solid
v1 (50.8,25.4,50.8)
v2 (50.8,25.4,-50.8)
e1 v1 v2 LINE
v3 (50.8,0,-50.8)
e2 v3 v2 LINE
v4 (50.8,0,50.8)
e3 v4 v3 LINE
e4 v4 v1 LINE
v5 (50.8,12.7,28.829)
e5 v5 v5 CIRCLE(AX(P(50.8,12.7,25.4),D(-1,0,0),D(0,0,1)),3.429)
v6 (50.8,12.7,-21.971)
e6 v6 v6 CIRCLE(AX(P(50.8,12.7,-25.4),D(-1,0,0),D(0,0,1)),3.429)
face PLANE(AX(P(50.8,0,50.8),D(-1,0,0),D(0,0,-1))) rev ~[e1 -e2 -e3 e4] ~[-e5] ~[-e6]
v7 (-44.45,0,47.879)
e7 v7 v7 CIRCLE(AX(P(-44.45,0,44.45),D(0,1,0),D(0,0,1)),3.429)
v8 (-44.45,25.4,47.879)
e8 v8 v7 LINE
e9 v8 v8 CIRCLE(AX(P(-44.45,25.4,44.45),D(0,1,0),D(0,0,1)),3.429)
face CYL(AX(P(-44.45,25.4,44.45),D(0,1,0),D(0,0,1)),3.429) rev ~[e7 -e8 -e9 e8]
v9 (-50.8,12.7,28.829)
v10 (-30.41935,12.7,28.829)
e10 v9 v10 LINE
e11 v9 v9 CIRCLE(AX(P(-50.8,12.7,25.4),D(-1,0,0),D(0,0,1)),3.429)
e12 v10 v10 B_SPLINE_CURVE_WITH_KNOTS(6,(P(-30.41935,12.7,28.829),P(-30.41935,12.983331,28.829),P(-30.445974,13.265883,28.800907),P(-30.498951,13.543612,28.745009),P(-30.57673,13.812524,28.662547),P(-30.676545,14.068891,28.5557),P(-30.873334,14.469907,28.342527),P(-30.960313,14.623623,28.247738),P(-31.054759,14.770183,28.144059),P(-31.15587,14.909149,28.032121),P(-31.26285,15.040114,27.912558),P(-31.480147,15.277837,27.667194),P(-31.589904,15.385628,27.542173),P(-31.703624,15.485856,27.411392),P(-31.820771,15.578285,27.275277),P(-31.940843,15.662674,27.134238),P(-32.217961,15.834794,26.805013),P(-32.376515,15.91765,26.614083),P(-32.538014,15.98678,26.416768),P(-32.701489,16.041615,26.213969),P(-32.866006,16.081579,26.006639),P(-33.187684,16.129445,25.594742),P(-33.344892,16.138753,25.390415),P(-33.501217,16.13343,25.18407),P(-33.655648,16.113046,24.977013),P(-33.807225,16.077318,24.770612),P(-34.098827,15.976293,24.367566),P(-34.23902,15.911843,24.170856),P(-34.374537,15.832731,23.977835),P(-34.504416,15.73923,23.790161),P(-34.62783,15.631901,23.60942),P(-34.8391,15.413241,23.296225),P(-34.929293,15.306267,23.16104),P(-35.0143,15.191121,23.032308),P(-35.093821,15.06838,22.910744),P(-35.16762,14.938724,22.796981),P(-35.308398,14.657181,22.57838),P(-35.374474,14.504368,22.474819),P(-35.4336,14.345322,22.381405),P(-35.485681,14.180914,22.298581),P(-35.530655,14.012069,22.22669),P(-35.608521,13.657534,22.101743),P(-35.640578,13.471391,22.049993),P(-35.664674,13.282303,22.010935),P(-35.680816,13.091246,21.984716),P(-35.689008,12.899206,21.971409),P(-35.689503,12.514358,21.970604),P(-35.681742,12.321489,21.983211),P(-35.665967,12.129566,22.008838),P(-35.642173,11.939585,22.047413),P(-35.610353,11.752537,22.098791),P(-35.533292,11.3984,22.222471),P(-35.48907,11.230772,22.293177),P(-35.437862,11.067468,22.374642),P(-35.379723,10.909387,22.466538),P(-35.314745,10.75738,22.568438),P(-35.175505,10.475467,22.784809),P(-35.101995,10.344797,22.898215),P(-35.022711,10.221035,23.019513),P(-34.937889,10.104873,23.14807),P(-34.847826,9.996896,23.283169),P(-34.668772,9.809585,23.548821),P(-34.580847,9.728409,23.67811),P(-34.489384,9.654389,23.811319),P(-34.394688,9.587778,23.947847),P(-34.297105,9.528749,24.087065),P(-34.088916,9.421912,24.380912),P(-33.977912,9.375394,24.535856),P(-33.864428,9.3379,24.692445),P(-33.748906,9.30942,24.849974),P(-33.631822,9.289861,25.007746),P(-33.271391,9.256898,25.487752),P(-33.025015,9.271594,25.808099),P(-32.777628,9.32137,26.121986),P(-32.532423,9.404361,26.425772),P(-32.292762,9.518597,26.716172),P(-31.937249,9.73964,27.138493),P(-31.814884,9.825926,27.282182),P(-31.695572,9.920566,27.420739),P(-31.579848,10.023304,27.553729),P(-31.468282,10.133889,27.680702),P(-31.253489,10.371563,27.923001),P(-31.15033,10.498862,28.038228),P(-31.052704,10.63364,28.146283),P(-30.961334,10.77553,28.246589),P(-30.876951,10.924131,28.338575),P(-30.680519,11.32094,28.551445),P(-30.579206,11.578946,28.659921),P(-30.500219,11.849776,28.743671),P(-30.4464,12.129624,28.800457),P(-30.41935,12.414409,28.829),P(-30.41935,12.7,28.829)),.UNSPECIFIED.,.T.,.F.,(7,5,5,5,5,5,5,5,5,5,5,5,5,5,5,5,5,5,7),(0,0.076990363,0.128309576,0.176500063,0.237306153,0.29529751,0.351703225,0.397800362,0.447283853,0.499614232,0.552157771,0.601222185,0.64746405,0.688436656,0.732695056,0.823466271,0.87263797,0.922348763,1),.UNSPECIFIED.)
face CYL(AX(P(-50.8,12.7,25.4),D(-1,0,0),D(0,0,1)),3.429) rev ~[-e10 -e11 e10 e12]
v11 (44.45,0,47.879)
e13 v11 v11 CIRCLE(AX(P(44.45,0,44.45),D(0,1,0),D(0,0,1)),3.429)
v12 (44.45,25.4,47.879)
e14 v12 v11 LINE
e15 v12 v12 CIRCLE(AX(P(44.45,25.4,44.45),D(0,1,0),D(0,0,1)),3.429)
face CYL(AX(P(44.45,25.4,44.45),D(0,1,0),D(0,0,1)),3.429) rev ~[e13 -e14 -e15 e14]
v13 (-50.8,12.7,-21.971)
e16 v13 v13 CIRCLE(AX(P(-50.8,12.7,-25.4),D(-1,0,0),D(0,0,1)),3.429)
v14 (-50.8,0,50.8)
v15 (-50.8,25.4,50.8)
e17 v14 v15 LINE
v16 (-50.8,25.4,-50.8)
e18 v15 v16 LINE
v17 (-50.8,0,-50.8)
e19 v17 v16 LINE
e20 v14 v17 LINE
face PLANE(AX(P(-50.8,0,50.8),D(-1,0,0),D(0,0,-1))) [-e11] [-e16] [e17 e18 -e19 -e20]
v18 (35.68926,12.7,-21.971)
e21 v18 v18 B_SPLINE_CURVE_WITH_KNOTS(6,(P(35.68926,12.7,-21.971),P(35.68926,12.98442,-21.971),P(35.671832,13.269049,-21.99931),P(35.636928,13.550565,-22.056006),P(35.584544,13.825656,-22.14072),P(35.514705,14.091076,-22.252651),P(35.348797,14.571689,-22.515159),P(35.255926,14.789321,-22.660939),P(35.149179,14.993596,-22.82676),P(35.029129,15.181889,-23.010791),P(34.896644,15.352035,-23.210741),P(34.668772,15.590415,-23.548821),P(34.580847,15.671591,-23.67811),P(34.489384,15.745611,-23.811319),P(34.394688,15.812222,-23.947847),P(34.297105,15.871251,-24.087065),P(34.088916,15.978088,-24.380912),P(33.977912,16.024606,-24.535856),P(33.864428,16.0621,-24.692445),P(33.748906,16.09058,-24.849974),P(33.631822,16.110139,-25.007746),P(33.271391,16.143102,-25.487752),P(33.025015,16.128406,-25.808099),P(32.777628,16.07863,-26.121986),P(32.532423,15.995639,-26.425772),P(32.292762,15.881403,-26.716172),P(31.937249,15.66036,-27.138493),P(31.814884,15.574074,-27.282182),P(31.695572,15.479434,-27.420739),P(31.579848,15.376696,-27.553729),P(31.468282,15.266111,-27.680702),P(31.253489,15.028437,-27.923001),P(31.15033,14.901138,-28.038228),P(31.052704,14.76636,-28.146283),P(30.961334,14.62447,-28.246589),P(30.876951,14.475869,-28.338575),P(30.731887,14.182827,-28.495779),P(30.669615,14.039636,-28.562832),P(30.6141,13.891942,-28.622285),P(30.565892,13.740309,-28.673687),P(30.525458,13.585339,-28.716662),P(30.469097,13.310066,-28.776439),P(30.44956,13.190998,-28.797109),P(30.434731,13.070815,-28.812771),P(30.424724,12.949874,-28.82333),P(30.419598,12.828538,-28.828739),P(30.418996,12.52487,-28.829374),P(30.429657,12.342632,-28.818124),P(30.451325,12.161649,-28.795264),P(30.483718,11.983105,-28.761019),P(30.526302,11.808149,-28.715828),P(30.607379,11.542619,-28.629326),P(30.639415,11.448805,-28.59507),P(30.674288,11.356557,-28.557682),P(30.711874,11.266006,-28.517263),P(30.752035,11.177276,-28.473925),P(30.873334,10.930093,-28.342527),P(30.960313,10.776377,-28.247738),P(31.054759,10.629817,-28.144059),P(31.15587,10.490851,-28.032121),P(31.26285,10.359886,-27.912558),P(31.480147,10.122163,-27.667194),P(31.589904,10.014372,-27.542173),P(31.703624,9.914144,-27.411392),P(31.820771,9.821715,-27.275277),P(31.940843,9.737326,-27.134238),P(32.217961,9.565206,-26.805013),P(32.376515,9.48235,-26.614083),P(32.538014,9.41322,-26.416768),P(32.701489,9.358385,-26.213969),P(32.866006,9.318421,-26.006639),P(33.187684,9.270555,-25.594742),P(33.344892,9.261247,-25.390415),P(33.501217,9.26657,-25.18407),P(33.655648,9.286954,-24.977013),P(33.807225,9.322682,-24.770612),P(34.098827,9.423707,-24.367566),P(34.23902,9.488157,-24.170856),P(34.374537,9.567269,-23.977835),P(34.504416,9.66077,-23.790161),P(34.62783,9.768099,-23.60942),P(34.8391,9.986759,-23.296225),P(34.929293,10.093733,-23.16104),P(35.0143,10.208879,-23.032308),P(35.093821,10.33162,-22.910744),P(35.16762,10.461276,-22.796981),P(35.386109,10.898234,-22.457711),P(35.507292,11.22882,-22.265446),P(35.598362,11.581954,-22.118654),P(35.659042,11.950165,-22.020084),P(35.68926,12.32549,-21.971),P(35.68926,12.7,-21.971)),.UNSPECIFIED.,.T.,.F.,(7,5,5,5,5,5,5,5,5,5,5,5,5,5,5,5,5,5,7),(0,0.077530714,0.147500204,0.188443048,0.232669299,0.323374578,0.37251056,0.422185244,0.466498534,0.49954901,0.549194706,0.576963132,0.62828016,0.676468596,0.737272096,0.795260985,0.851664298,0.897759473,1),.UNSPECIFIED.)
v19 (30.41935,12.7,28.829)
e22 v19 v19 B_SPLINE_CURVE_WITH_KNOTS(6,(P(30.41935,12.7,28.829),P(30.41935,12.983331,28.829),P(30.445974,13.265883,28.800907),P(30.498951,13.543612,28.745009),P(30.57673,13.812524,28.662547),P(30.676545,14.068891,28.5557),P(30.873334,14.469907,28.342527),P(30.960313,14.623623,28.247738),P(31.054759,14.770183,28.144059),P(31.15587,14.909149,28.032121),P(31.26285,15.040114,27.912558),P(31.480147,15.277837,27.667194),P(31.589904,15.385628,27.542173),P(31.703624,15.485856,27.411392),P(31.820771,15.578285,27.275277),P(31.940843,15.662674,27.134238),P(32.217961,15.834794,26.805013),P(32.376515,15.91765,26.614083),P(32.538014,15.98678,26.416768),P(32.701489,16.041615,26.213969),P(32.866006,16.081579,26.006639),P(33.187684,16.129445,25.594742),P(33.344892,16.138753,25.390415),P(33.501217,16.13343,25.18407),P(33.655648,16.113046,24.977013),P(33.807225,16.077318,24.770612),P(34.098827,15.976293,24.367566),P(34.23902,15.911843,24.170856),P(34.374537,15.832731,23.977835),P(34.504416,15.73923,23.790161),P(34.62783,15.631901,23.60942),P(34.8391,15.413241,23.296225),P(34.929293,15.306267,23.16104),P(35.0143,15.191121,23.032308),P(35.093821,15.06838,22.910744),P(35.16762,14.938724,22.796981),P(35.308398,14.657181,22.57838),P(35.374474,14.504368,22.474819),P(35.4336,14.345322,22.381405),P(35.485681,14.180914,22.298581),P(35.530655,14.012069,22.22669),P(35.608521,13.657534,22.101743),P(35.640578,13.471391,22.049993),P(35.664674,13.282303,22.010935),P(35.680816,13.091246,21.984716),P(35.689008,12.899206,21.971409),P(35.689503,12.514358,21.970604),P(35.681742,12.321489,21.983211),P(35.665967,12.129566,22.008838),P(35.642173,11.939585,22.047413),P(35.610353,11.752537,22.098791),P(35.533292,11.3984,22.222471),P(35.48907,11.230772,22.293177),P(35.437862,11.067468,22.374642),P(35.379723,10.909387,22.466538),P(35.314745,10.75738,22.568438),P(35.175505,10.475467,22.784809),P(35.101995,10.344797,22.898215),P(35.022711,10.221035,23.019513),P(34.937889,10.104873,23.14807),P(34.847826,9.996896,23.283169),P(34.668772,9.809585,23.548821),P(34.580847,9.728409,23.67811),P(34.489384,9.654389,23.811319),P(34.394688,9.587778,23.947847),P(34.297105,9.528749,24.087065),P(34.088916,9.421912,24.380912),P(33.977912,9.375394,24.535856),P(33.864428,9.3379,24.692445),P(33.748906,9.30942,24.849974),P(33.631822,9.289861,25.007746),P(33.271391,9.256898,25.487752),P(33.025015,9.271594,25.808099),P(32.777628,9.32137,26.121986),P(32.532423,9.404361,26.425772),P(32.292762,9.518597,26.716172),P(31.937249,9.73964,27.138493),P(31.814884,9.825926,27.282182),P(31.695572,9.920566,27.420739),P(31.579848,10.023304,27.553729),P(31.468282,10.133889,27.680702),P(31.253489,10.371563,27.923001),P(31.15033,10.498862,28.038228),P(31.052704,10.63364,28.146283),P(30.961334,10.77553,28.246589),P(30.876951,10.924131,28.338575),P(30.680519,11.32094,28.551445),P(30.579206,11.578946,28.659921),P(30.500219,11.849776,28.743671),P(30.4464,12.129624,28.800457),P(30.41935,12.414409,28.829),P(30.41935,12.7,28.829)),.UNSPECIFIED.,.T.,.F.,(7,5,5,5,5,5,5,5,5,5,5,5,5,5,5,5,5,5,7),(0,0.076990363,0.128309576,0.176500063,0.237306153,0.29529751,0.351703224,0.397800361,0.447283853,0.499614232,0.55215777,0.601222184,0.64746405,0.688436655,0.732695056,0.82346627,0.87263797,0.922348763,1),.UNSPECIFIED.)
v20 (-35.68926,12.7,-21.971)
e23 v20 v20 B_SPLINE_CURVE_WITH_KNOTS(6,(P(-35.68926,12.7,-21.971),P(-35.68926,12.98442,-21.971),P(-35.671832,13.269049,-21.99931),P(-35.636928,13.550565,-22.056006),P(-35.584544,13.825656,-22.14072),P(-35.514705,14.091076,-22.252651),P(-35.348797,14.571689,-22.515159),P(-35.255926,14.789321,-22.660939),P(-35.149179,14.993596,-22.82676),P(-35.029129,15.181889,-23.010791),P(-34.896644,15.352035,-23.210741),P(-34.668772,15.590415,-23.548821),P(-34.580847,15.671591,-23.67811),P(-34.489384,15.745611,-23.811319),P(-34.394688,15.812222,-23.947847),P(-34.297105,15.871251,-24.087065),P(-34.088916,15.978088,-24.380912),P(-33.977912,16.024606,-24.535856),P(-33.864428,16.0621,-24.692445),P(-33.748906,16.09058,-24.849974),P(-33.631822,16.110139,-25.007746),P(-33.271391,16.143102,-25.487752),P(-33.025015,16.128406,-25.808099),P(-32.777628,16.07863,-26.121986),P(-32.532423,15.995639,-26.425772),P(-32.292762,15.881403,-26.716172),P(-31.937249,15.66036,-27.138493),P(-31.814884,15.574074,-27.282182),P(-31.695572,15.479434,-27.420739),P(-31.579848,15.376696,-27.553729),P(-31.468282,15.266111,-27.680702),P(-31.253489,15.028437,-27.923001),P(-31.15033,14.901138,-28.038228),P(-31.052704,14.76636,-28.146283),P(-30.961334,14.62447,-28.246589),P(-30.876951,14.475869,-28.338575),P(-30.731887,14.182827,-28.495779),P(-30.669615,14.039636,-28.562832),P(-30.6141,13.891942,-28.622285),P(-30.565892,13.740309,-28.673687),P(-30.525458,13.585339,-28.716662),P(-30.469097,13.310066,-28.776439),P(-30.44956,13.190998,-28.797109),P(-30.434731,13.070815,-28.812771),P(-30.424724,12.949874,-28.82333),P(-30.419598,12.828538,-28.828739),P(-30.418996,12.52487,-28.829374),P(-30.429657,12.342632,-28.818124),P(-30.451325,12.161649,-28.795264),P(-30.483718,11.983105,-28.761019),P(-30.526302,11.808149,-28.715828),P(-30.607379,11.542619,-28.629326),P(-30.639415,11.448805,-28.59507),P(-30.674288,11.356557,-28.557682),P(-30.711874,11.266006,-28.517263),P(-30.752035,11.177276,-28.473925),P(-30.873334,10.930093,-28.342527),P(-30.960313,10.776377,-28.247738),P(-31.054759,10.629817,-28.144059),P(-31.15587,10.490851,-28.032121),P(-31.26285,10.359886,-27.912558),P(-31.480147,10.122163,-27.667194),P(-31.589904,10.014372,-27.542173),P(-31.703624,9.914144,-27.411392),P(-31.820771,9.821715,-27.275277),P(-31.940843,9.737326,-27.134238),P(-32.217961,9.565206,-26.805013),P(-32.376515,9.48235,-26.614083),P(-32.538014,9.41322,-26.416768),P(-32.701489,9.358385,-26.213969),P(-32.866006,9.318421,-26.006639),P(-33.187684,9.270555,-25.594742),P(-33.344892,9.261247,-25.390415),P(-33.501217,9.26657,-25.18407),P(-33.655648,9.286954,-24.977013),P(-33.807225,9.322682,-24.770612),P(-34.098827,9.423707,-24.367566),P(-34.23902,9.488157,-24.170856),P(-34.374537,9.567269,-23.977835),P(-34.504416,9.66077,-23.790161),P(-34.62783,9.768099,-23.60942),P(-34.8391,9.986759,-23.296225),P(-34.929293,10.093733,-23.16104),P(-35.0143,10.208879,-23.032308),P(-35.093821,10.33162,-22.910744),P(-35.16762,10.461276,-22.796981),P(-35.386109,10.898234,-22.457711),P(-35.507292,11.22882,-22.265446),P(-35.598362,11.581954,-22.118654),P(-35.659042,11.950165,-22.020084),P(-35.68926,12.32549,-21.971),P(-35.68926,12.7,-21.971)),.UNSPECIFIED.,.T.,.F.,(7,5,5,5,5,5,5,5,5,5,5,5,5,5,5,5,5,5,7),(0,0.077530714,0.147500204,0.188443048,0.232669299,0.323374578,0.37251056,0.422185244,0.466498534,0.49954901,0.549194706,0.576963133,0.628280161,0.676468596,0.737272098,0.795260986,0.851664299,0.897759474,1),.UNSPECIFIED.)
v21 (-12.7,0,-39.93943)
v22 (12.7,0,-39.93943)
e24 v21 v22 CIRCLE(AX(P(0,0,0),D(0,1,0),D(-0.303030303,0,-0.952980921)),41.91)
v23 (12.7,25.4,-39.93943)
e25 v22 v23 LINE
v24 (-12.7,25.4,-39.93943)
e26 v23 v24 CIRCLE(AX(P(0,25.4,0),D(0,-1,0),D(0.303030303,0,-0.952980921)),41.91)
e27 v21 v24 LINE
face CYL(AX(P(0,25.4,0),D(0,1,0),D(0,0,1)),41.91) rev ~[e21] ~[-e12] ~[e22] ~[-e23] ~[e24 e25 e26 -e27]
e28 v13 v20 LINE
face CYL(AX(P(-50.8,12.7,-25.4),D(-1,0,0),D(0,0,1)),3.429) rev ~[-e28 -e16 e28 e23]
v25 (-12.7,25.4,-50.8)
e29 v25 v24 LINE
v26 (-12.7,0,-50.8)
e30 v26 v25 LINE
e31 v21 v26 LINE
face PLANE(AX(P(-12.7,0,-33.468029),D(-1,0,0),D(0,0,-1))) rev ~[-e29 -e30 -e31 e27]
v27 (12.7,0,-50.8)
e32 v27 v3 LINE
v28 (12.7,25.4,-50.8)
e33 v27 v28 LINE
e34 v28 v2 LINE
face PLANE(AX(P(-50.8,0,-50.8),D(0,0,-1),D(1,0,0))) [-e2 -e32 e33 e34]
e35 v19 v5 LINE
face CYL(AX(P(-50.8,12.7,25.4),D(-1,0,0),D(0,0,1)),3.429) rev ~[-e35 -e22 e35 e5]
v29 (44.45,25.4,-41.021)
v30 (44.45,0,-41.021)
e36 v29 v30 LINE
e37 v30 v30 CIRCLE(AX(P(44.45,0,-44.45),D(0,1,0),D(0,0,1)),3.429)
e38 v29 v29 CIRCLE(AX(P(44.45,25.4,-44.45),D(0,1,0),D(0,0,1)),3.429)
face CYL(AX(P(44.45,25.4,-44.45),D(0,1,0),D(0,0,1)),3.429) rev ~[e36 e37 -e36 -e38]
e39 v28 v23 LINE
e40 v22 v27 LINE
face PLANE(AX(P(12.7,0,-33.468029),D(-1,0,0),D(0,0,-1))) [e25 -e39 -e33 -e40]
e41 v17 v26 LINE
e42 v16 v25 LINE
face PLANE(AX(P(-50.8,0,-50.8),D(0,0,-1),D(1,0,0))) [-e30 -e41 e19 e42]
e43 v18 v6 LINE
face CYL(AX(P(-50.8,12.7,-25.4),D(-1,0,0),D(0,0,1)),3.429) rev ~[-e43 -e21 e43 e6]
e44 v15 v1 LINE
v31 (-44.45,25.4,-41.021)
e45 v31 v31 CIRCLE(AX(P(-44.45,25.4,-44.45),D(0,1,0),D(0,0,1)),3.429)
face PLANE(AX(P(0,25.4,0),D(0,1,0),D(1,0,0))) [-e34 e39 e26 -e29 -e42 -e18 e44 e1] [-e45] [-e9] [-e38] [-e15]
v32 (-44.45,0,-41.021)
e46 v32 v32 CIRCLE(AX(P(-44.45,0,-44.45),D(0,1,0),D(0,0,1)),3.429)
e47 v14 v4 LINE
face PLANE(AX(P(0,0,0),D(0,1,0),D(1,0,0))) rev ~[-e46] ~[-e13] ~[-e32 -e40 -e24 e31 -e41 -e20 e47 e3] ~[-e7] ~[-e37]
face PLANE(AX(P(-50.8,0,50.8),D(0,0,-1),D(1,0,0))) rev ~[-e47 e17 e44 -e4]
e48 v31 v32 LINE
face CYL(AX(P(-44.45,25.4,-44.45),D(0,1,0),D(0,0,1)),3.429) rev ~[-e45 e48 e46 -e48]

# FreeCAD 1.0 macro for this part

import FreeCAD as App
import Part
import Sketcher
from FreeCAD import Vector
Q = App.Units.Quantity

doc = App.newDocument("Part")
params = doc.addObject("Spreadsheet::Sheet", "Params")
for row, (alias, value) in enumerate([
    ("sketch1_width", "4 in"),
    ("pad1_length", "1 in"),
    ("sketch2_diameter", "3.3 in"),
    ("sketch3_width", "1 in"),
    ("sketch4_diameter", "0.27 in"),
    ("sketch5_diameter", "0.27 in"),
], start=1):
    params.set(f"A{row}", alias)
    params.set(f"B{row}", "=" + value)
    params.setAlias(f"B{row}", alias)

body = doc.addObject("PartDesign::Body", "Body")

# Sketch on XZ plane
sketch1 = body.newObject("Sketcher::SketchObject", "Sketch")
sketch1.AttachmentSupport = (doc.getObject("XZ_Plane"), [""])
sketch1.MapMode = "FlatFace"
sketch1.addGeometry([
    Part.LineSegment(Vector(-51, -51, 0), Vector(-51, 51, 0)),
    Part.LineSegment(Vector(-51, 51, 0), Vector(51, 51, 0)),
    Part.LineSegment(Vector(51, 51, 0), Vector(51, -51, 0)),
    Part.LineSegment(Vector(51, -51, 0), Vector(-51, -51, 0)),
], False)
sketch1.addConstraint([
    Sketcher.Constraint("Coincident", 0, 2, 1, 1),
    Sketcher.Constraint("Coincident", 1, 2, 2, 1),
    Sketcher.Constraint("Coincident", 2, 2, 3, 1),
    Sketcher.Constraint("Coincident", 3, 2, 0, 1),
    Sketcher.Constraint("Vertical", 0),
    Sketcher.Constraint("Horizontal", 1),
    Sketcher.Constraint("Vertical", 2),
    Sketcher.Constraint("Horizontal", 3),
    Sketcher.Constraint("Symmetric", 0, 2, 2, 2, -1, 1),
    Sketcher.Constraint("Equal", 3, 0),
    Sketcher.Constraint("DistanceX", 1, 1, 1, 2, Q("4 in")),
])
sketch1.setExpression("Constraints[10]", "Params.sketch1_width")
pad1 = body.newObject("PartDesign::Pad", "Pad")
pad1.Profile = sketch1
pad1.setExpression("Length", "Params.pad1_length")
pad1.Reversed = True

# Sketch on XZ plane
sketch2 = body.newObject("Sketcher::SketchObject", "Sketch001")
sketch2.AttachmentSupport = (doc.getObject("XZ_Plane"), [""])
sketch2.MapMode = "FlatFace"
sketch2.AttachmentOffset = App.Placement(Vector(0, 0, -1 * 25.4), App.Rotation())
sketch2.addGeometry(Part.Circle(Vector(0, 0, 0), Vector(0, 0, 1), 42), False)
sketch2.addConstraint([
    Sketcher.Constraint("Coincident", 0, 3, -1, 1),
    Sketcher.Constraint("Diameter", 0, Q("3.3 in")),
])
sketch2.setExpression("Constraints[1]", "Params.sketch2_diameter")
pocket1 = body.newObject("PartDesign::Pocket", "Pocket")
pocket1.Profile = sketch2
pocket1.Type = "ThroughAll"
pocket1.Reversed = True

# Sketch on XZ plane
sketch3 = body.newObject("Sketcher::SketchObject", "Sketch002")
sketch3.AttachmentSupport = (doc.getObject("XZ_Plane"), [""])
sketch3.MapMode = "FlatFace"
sketch3.addGeometry([
    Part.LineSegment(Vector(-13, -68, 0), Vector(-13, -33, 0)),
    Part.LineSegment(Vector(-13, -33, 0), Vector(13, -33, 0)),
    Part.LineSegment(Vector(13, -33, 0), Vector(13, -68, 0)),
    Part.LineSegment(Vector(13, -68, 0), Vector(-13, -68, 0)),
], False)
sketch3.addConstraint([
    Sketcher.Constraint("Coincident", 0, 2, 1, 1),
    Sketcher.Constraint("Coincident", 1, 2, 2, 1),
    Sketcher.Constraint("Coincident", 2, 2, 3, 1),
    Sketcher.Constraint("Coincident", 3, 2, 0, 1),
    Sketcher.Constraint("Vertical", 0),
    Sketcher.Constraint("Horizontal", 1),
    Sketcher.Constraint("Vertical", 2),
    Sketcher.Constraint("Horizontal", 3),
    Sketcher.Constraint("DistanceX", 1, 1, 1, 2, Q("1 in")),
    Sketcher.Constraint("DistanceX", 0, 2, -1, 1, Q("0.5 in")),
    Sketcher.Constraint("DistanceY", 0, 1, 0, 2, 34.663941),
    Sketcher.Constraint("DistanceY", 0, 2, -1, 1, 33.468029),
])
sketch3.setExpression("Constraints[8]", "Params.sketch3_width")
pocket2 = body.newObject("PartDesign::Pocket", "Pocket001")
pocket2.Profile = sketch3
pocket2.Type = "ThroughAll"

# Sketch on XZ plane
sketch4 = body.newObject("Sketcher::SketchObject", "Sketch003")
sketch4.AttachmentSupport = (doc.getObject("XZ_Plane"), [""])
sketch4.MapMode = "FlatFace"
sketch4.AttachmentOffset = App.Placement(Vector(0, 0, -1 * 25.4), App.Rotation())
sketch4.addGeometry([
    Part.Circle(Vector(-44.5, -44.5, 0), Vector(0, 0, 1), 3.4),
    Part.Circle(Vector(44.5, -44.5, 0), Vector(0, 0, 1), 3.4),
    Part.Circle(Vector(44.5, 44.5, 0), Vector(0, 0, 1), 3.4),
    Part.Circle(Vector(-44.5, 44.5, 0), Vector(0, 0, 1), 3.4),
], False)
sketch4.addConstraint([
    Sketcher.Constraint("Equal", 0, 1),
    Sketcher.Constraint("Equal", 1, 2),
    Sketcher.Constraint("Equal", 2, 3),
    Sketcher.Constraint("Symmetric", 0, 3, 2, 3, -1, 1),
    Sketcher.Constraint("Symmetric", 1, 3, 3, 3, -1, 1),
    Sketcher.Constraint("Symmetric", 0, 3, 1, 3, -2),
    Sketcher.Constraint("Diameter", 0, Q("0.27 in")),
    Sketcher.Constraint("DistanceX", 0, 3, 1, 3, Q("3.5 in")),
    Sketcher.Constraint("DistanceY", 1, 3, 2, 3, Q("3.5 in")),
])
sketch4.setExpression("Constraints[6]", "Params.sketch4_diameter")
pocket3 = body.newObject("PartDesign::Pocket", "Pocket002")
pocket3.Profile = sketch4
pocket3.Type = "ThroughAll"
pocket3.Reversed = True

# Sketch on YZ plane
sketch5 = body.newObject("Sketcher::SketchObject", "Sketch004")
sketch5.AttachmentSupport = (doc.getObject("YZ_Plane"), [""])
sketch5.MapMode = "FlatFace"
sketch5.AttachmentOffset = App.Placement(Vector(0, 0, -2 * 25.4), App.Rotation())
sketch5.addGeometry([
    Part.Circle(Vector(12.7, -25.4, 0), Vector(0, 0, 1), 3.4),
    Part.Circle(Vector(12.7, 25.4, 0), Vector(0, 0, 1), 3.4),
], False)
sketch5.addConstraint([
    Sketcher.Constraint("Equal", 0, 1),
    Sketcher.Constraint("Symmetric", 0, 3, 1, 3, -1),
    Sketcher.Constraint("Diameter", 0, Q("0.27 in")),
    Sketcher.Constraint("DistanceY", 0, 3, -1, 1, Q("1 in")),
    Sketcher.Constraint("DistanceX", -1, 1, 0, 3, Q("0.5 in")),
])
sketch5.setExpression("Constraints[2]", "Params.sketch5_diameter")
pocket4 = body.newObject("PartDesign::Pocket", "Pocket003")
pocket4.Profile = sketch5
pocket4.Type = "ThroughAll"
pocket4.Reversed = True

doc.recompute()
